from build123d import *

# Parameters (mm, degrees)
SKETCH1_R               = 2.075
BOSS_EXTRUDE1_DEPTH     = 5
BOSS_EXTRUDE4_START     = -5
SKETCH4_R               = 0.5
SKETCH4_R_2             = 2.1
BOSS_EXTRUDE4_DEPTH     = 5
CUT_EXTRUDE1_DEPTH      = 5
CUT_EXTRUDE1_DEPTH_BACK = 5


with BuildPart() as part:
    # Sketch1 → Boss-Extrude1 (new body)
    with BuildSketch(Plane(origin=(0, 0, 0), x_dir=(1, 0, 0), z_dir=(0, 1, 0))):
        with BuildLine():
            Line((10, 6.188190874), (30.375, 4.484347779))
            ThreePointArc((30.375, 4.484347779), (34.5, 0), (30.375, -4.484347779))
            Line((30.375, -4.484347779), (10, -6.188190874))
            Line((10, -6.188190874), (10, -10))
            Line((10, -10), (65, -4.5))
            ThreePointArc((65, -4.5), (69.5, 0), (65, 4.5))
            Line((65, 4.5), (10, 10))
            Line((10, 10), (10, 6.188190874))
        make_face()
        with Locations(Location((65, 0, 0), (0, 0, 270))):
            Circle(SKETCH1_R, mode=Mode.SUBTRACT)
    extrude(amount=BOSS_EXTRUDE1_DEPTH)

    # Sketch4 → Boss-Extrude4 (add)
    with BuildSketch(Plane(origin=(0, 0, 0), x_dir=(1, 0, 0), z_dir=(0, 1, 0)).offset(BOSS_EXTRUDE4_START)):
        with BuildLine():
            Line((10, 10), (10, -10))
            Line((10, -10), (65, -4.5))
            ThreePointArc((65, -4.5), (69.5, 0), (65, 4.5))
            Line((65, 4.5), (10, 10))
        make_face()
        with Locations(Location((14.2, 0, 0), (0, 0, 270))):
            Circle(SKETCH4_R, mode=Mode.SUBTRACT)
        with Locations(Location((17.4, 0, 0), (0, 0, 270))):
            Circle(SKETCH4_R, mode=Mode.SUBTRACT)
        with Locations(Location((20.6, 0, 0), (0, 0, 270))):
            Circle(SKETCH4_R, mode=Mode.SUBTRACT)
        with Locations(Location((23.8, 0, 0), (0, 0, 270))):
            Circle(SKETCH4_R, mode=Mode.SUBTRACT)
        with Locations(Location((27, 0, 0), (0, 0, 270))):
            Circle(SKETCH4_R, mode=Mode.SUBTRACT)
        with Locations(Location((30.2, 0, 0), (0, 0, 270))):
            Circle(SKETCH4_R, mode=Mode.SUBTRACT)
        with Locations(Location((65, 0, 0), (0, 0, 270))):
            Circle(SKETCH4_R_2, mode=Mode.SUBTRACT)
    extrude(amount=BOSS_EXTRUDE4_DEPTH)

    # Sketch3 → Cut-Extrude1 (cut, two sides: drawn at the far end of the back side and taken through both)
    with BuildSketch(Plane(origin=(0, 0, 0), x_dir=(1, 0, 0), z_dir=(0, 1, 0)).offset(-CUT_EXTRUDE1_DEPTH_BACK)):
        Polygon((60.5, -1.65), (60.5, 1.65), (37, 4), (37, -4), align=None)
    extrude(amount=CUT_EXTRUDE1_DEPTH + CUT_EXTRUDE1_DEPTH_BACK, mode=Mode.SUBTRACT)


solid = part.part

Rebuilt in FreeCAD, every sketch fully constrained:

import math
import FreeCAD as App
import Part
import Sketcher

doc = App.newDocument("Part")
body = doc.addObject("PartDesign::Body", "Body")

sketch1 = body.newObject("Sketcher::SketchObject", "Sketch")
sketch1.AttachmentSupport = (doc.getObject("XZ_Plane"), [""])
sketch1.MapMode = "FlatFace"
sketch1.addGeometry([
    Part.LineSegment(App.Vector(10, -6.2, 0), App.Vector(30.4, -4.5, 0)),
    Part.ArcOfCircle(Part.Circle(App.Vector(30, 0, 0), App.Vector(0, 0, 1), 4.5), math.radians(-85), math.radians(85)),
    Part.LineSegment(App.Vector(30.4, 4.5, 0), App.Vector(10, 6.2, 0)),
    Part.LineSegment(App.Vector(10, 6.2, 0), App.Vector(10, 10, 0)),
    Part.LineSegment(App.Vector(10, 10, 0), App.Vector(65, 4.5, 0)),
    Part.ArcOfCircle(Part.Circle(App.Vector(65, 0, 0), App.Vector(0, 0, 1), 4.5), math.radians(-90), math.radians(90)),
    Part.LineSegment(App.Vector(65, -4.5, 0), App.Vector(10, -10, 0)),
    Part.LineSegment(App.Vector(10, -10, 0), App.Vector(10, -6.2, 0)),
    Part.Circle(App.Vector(65, 0, 0), App.Vector(0, 0, 1), 2.1),
], False)
sketch1.addConstraint([
    Sketcher.Constraint("Tangent", 0, 2, 1, 1),
    Sketcher.Constraint("Tangent", 1, 2, 2, 1),
    Sketcher.Constraint("Coincident", 2, 2, 3, 1),
    Sketcher.Constraint("Coincident", 3, 2, 4, 1),
    Sketcher.Constraint("Coincident", 4, 2, 5, 2),
    Sketcher.Constraint("Coincident", 5, 1, 6, 1),
    Sketcher.Constraint("Coincident", 6, 2, 7, 1),
    Sketcher.Constraint("Coincident", 7, 2, 0, 1),
    Sketcher.Constraint("Vertical", 3),
    Sketcher.Constraint("Vertical", 7),
    Sketcher.Constraint("Coincident", 8, 3, 5, 3),
    Sketcher.Constraint("Equal", 1, 5),
    Sketcher.Constraint("Symmetric", 0, 2, 1, 2, -1),
    Sketcher.Constraint("Symmetric", 4, 2, 5, 1, -1),
    Sketcher.Constraint("Symmetric", 3, 2, 6, 2, -1),
    Sketcher.Constraint("Vertical", 8, 3, 4, 2),
    Sketcher.Constraint("Radius", 1, 4.5),
    Sketcher.Constraint("Diameter", 8, 4.15),
    Sketcher.Constraint("DistanceX", -1, 1, 1, 3, 30.0),
    Sketcher.Constraint("DistanceX", -1, 1, 5, 3, 65.0),
    Sketcher.Constraint("DistanceX", -1, 1, 2, 2, 10.0),
    Sketcher.Constraint("DistanceY", -1, 1, 3, 2, 10.0),
    Sketcher.Constraint("DistanceX", -1, 1, 0, 2, 30.375),
])
pad1 = body.newObject("PartDesign::Pad", "Pad")
pad1.Profile = sketch1
pad1.Length = 5
pad1.Reversed = True

sketch2 = body.newObject("Sketcher::SketchObject", "Sketch001")
sketch2.AttachmentSupport = (doc.getObject("XZ_Plane"), [""])
sketch2.MapMode = "FlatFace"
sketch2.AttachmentOffset = App.Placement(App.Vector(0, 0, 5), App.Rotation())
sketch2.addGeometry([
    Part.LineSegment(App.Vector(10, -10, 0), App.Vector(10, 10, 0)),
    Part.LineSegment(App.Vector(10, 10, 0), App.Vector(65, 4.5, 0)),
    Part.ArcOfCircle(Part.Circle(App.Vector(65, 0, 0), App.Vector(0, 0, 1), 4.5), math.radians(-90), math.radians(90)),
    Part.LineSegment(App.Vector(65, -4.5, 0), App.Vector(10, -10, 0)),
    Part.Circle(App.Vector(14.2, 0, 0), App.Vector(0, 0, 1), 0.5),
    Part.Circle(App.Vector(17.4, 0, 0), App.Vector(0, 0, 1), 0.5),
    Part.Circle(App.Vector(20.6, 0, 0), App.Vector(0, 0, 1), 0.5),
    Part.Circle(App.Vector(23.8, 0, 0), App.Vector(0, 0, 1), 0.5),
    Part.Circle(App.Vector(27, 0, 0), App.Vector(0, 0, 1), 0.5),
    Part.Circle(App.Vector(30.2, 0, 0), App.Vector(0, 0, 1), 0.5),
    Part.Circle(App.Vector(65, 0, 0), App.Vector(0, 0, 1), 2.1),
], False)
sketch2.addConstraint([
    Sketcher.Constraint("Coincident", 0, 2, 1, 1),
    Sketcher.Constraint("Coincident", 1, 2, 2, 2),
    Sketcher.Constraint("Coincident", 2, 1, 3, 1),
    Sketcher.Constraint("Coincident", 3, 2, 0, 1),
    Sketcher.Constraint("Vertical", 0),
    Sketcher.Constraint("Coincident", 10, 3, 2, 3),
    Sketcher.Constraint("Equal", 4, 5),
    Sketcher.Constraint("Equal", 5, 6),
    Sketcher.Constraint("Equal", 6, 7),
    Sketcher.Constraint("Equal", 7, 8),
    Sketcher.Constraint("Equal", 8, 9),
    Sketcher.Constraint("Symmetric", 1, 2, 2, 1, -1),
    Sketcher.Constraint("PointOnObject", 4, 3, -1),
    Sketcher.Constraint("PointOnObject", 5, 3, -1),
    Sketcher.Constraint("PointOnObject", 6, 3, -1),
    Sketcher.Constraint("PointOnObject", 7, 3, -1),
    Sketcher.Constraint("PointOnObject", 8, 3, -1),
    Sketcher.Constraint("PointOnObject", 9, 3, -1),
    Sketcher.Constraint("Vertical", 10, 3, 1, 2),
    Sketcher.Constraint("Equal", 1, 3),
    Sketcher.Constraint("Diameter", 4, 1.0),
    Sketcher.Constraint("Diameter", 10, 4.2),
    Sketcher.Constraint("Radius", 2, 4.5),
    Sketcher.Constraint("DistanceY", 0, 1, 0, 2, 20.0),
    Sketcher.Constraint("DistanceX", -1, 1, 2, 3, 65.0),
    Sketcher.Constraint("DistanceX", -1, 1, 8, 3, 27.0),
    Sketcher.Constraint("DistanceX", -1, 1, 0, 2, 10.0),
    Sketcher.Constraint("DistanceX", 4, 3, 9, 3, 16.0),
    Sketcher.Constraint("DistanceX", -1, 1, 4, 3, 14.2),
    Sketcher.Constraint("DistanceX", -1, 1, 5, 3, 17.4),
    Sketcher.Constraint("DistanceX", -1, 1, 6, 3, 20.6),
    Sketcher.Constraint("DistanceX", -1, 1, 7, 3, 23.8),
])
pad2 = body.newObject("PartDesign::Pad", "Pad001")
pad2.Profile = sketch2
pad2.Length = 5
pad2.Reversed = True

sketch3 = body.newObject("Sketcher::SketchObject", "Sketch002")
sketch3.AttachmentSupport = (doc.getObject("XZ_Plane"), [""])
sketch3.MapMode = "FlatFace"
sketch3.addGeometry([
    Part.LineSegment(App.Vector(60.5, 1.6, 0), App.Vector(60.5, -1.6, 0)),
    Part.LineSegment(App.Vector(60.5, -1.6, 0), App.Vector(37, -4, 0)),
    Part.LineSegment(App.Vector(37, -4, 0), App.Vector(37, 4, 0)),
    Part.LineSegment(App.Vector(37, 4, 0), App.Vector(60.5, 1.6, 0)),
], False)
sketch3.addConstraint([
    Sketcher.Constraint("Coincident", 0, 2, 1, 1),
    Sketcher.Constraint("Coincident", 1, 2, 2, 1),
    Sketcher.Constraint("Coincident", 2, 2, 3, 1),
    Sketcher.Constraint("Coincident", 3, 2, 0, 1),
    Sketcher.Constraint("Vertical", 0),
    Sketcher.Constraint("Vertical", 2),
    Sketcher.Constraint("Equal", 1, 3),
    Sketcher.Constraint("DistanceY", 2, 1, 2, 2, 8.0),
    Sketcher.Constraint("DistanceY", 0, 2, 0, 1, 3.3),
    Sketcher.Constraint("DistanceX", -1, 1, 1, 2, 37.0),
    Sketcher.Constraint("DistanceY", 1, 2, -1, 1, 4.0),
    Sketcher.Constraint("DistanceX", -1, 1, 0, 2, 60.5),
])
pocket1 = body.newObject("PartDesign::Pocket", "Pocket")
pocket1.Profile = sketch3
pocket1.Type = "ThroughAll"
pocket1.Midplane = True

doc.recompute()
